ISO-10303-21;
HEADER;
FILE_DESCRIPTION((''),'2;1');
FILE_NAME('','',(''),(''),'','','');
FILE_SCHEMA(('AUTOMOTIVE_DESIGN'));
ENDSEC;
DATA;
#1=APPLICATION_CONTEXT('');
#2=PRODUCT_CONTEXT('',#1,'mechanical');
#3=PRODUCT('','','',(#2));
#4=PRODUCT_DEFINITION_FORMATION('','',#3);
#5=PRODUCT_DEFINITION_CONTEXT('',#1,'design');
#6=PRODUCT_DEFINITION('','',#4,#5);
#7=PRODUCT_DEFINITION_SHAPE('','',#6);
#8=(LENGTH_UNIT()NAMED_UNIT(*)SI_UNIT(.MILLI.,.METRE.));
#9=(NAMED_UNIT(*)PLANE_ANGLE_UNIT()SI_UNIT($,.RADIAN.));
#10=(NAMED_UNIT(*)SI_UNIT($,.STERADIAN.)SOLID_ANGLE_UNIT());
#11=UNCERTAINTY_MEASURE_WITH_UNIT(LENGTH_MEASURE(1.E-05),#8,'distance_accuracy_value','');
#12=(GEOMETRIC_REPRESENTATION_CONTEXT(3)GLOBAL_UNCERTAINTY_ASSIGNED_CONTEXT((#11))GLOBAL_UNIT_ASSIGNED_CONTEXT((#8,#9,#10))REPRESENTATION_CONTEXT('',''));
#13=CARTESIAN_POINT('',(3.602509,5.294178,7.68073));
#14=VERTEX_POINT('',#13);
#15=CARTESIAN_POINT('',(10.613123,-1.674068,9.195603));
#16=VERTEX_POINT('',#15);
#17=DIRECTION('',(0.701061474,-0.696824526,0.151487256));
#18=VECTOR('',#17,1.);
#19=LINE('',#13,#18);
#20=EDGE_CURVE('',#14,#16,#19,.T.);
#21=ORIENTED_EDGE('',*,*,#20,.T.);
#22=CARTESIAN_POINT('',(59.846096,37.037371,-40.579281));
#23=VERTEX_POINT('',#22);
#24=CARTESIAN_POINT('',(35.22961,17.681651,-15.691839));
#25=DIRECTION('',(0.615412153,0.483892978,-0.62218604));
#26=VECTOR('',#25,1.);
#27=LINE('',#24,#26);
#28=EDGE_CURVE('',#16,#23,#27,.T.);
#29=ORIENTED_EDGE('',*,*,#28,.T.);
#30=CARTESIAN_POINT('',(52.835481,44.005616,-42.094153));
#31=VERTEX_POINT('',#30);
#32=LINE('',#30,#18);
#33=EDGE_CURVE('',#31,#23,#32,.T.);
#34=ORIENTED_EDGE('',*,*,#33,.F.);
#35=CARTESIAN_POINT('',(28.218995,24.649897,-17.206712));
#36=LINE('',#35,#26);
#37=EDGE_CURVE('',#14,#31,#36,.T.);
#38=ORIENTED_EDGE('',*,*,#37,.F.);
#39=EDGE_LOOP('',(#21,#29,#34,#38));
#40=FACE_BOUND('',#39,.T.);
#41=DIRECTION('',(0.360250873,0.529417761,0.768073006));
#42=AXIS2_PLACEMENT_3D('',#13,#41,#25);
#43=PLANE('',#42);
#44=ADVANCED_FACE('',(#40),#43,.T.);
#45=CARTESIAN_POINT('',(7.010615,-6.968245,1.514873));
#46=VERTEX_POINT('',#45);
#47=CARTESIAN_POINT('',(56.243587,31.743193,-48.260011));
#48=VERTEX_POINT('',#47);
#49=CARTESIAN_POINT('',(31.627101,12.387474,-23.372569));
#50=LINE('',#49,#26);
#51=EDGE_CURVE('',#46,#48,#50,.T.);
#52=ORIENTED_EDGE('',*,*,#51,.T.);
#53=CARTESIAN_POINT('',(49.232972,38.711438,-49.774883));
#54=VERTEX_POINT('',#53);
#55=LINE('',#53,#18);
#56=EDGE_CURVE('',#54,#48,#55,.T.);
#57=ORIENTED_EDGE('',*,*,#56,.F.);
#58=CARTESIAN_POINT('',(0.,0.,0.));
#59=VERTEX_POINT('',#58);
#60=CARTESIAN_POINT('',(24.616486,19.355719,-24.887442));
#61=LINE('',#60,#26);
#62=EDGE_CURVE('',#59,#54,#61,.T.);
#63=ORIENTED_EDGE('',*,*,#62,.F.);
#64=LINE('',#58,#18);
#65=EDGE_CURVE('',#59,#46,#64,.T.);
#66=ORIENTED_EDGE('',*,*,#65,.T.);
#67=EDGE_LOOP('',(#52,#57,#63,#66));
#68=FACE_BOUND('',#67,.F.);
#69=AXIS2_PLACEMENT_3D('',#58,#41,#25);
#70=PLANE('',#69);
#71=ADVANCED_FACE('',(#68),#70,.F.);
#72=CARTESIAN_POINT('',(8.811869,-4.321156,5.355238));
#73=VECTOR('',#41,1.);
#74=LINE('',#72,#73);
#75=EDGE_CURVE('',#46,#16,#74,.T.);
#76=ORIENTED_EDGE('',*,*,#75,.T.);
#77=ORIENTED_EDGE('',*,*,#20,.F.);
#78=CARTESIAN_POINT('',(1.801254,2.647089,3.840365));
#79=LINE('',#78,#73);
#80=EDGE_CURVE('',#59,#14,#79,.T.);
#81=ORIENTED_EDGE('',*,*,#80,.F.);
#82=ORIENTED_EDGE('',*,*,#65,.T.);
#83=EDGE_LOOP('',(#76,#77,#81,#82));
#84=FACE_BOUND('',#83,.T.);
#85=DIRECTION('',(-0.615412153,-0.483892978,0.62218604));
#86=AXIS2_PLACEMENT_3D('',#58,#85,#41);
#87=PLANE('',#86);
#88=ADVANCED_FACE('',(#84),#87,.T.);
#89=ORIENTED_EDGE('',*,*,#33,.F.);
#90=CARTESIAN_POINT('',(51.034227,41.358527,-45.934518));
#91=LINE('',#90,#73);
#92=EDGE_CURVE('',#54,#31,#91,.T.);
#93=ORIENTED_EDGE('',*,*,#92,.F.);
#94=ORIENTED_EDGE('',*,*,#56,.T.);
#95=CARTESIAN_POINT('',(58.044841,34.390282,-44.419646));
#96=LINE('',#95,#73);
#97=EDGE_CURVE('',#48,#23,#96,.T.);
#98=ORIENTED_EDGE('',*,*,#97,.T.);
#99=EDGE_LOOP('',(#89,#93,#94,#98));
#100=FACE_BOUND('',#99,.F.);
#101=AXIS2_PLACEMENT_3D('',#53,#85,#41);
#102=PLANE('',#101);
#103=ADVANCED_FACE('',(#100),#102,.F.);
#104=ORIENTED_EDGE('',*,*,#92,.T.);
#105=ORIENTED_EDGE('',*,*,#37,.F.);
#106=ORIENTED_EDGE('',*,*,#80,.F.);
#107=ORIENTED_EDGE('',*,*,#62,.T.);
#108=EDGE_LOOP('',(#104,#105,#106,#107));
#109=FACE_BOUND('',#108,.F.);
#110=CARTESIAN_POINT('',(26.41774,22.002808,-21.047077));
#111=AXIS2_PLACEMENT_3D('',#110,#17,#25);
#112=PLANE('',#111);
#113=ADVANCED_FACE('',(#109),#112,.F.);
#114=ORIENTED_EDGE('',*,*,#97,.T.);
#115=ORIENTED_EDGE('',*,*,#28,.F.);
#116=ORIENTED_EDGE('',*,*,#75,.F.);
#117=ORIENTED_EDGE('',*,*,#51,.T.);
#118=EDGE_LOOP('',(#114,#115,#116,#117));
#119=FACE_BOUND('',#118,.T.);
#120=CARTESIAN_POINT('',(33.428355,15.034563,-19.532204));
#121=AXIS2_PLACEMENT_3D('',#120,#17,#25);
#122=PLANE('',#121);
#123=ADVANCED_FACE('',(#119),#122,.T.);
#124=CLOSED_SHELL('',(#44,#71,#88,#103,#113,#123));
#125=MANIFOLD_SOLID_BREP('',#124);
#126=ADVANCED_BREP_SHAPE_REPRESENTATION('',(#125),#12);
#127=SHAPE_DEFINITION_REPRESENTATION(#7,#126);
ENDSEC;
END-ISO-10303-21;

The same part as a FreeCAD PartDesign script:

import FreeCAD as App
import Part
import Sketcher

V = App.Vector
Q = App.Units.Quantity


def add_polygon(sketch, points):
    """Adds a closed chain of lines whose ends are joined by coincident constraints."""
    first, n = sketch.GeometryCount, len(points)
    for a, b in zip(points, points[1:] + points[:1]):
        sketch.addGeometry(Part.LineSegment(App.Vector(*a, 0), App.Vector(*b, 0)), False)
    for i in range(n):
        sketch.addConstraint(Sketcher.Constraint("Coincident", first + i, 2, first + (i + 1) % n, 1))

doc = App.newDocument("Part")
body = doc.addObject("PartDesign::Body", "Body")

# Sketch on XY plane
sketch1 = body.newObject("Sketcher::SketchObject", "Sketch")
sketch1.AttachmentSupport = (doc.getObject("XY_Plane"), [""])
sketch1.MapMode = "FlatFace"
add_polygon(sketch1, [(0, 10), (0, 0), (80, 0), (80, 10)])  # lines 0-3
sketch1.addConstraint([
    Sketcher.Constraint("Vertical", 0),
    Sketcher.Constraint("Horizontal", 1),
    Sketcher.Constraint("Vertical", 2),
    Sketcher.Constraint("Horizontal", 3),
    Sketcher.Constraint("Coincident", 0, 2, -1, 1),
    Sketcher.Constraint("DistanceX", 1, 1, 1, 2, Q("80 mm")),
    Sketcher.Constraint("DistanceY", 0, 2, 0, 1, Q("10 mm")),
])
pad1 = body.newObject("PartDesign::Pad", "Pad")
pad1.Profile = sketch1
pad1.Length = 10
body2 = doc.addObject("PartDesign::Body", "Body001")
doc.recompute()

body.Placement = App.Placement(V(0, 0, 0), App.Rotation(V(1, 0, 0), 78.842738))
boolean = body2.newObject("PartDesign::Boolean", "Boolean")
boolean.Type = "Fuse"
boolean.addObjects([body])
body3 = doc.addObject("PartDesign::Body", "Body002")
doc.recompute()

body2.Placement = App.Placement(V(0, 0, 0), App.Rotation(V(0, 1, 0), 38.475947))
boolean2 = body3.newObject("PartDesign::Boolean", "Boolean001")
boolean2.Type = "Fuse"
boolean2.addObjects([body2])
body4 = doc.addObject("PartDesign::Body", "Body003")
doc.recompute()

body3.Placement = App.Placement(V(0, 0, 0), App.Rotation(V(0, 0, 1), 38.177648))
boolean3 = body4.newObject("PartDesign::Boolean", "Boolean002")
boolean3.Type = "Fuse"
boolean3.addObjects([body3])

doc.recompute()
